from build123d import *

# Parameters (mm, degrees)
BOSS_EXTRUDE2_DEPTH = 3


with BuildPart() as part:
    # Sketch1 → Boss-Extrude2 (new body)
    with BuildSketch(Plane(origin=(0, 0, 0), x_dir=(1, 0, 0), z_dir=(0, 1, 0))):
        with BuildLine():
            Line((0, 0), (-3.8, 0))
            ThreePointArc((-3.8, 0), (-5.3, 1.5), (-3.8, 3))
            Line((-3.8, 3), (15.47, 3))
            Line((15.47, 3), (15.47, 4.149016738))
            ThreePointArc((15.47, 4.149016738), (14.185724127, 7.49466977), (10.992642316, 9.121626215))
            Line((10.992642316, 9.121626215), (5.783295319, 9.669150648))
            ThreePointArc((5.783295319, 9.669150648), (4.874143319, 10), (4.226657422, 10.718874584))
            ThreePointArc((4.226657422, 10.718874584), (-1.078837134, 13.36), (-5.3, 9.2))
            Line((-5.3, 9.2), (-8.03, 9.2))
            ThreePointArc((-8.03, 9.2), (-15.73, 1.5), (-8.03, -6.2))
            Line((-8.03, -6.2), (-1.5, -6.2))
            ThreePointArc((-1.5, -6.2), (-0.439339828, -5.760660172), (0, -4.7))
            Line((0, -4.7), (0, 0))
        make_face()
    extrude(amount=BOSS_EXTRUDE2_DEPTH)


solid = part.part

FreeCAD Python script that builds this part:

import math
import FreeCAD as App
import Part
import Sketcher
Q = App.Units.Quantity

doc = App.newDocument("Part")
body = doc.addObject("PartDesign::Body", "Body")

# Sketch on XZ plane
sketch1 = body.newObject("Sketcher::SketchObject", "Sketch")
sketch1.AttachmentSupport = (doc.getObject("XZ_Plane"), [""])
sketch1.MapMode = "FlatFace"
sketch1.addGeometry(Part.LineSegment(App.Vector(0, 0, 0), App.Vector(-3.8, 0, 0)), False)
sketch1.addGeometry(Part.ArcOfCircle(Part.Circle(App.Vector(-3.8, -1.5, 0), App.Vector(0, 0, 1), 1.5), math.radians(90), math.radians(270)), False)
sketch1.addGeometry(Part.LineSegment(App.Vector(-3.8, -3, 0), App.Vector(15.47, -3, 0)), False)
sketch1.addGeometry(Part.LineSegment(App.Vector(15.47, -3, 0), App.Vector(15.47, -4.149017, 0)), False)
sketch1.addGeometry(Part.ArcOfCircle(Part.Circle(App.Vector(10.47, -4.149017, 0), App.Vector(0, 0, 1), 5), math.radians(-84), math.radians(0)), False)
sketch1.addGeometry(Part.LineSegment(App.Vector(10.992642, -9.121626, 0), App.Vector(5.783295, -9.669151, 0)), False)
sketch1.addGeometry(Part.ArcOfCircle(Part.Circle(App.Vector(5.992352, -11.658194, 0), App.Vector(0, 0, 1), 2), math.radians(96), math.radians(151.987776)), False)
sketch1.addGeometry(Part.ArcOfCircle(Part.Circle(App.Vector(-0.275864, -8.323609, 0), App.Vector(0, 0, 1), 5.1), math.radians(-170.105102), math.radians(-28.012224)), False)
sketch1.addGeometry(Part.LineSegment(App.Vector(-5.3, -9.2, 0), App.Vector(-8.03, -9.2, 0)), False)
sketch1.addGeometry(Part.ArcOfCircle(Part.Circle(App.Vector(-8.03, -1.5, 0), App.Vector(0, 0, 1), 7.7), math.radians(90), math.radians(270)), False)
sketch1.addGeometry(Part.LineSegment(App.Vector(-8.03, 6.2, 0), App.Vector(-1.5, 6.2, 0)), False)
sketch1.addGeometry(Part.ArcOfCircle(Part.Circle(App.Vector(-1.5, 4.7, 0), App.Vector(0, 0, 1), 1.5), math.radians(0), math.radians(90)), False)
sketch1.addGeometry(Part.LineSegment(App.Vector(0, 4.7, 0), App.Vector(0, 0, 0)), False)
sketch1.addConstraint(Sketcher.Constraint("Tangent", 0, 2, 1, 1))
sketch1.addConstraint(Sketcher.Constraint("Tangent", 1, 2, 2, 1))
sketch1.addConstraint(Sketcher.Constraint("Coincident", 2, 2, 3, 1))
sketch1.addConstraint(Sketcher.Constraint("Tangent", 3, 2, 4, 2))
sketch1.addConstraint(Sketcher.Constraint("Tangent", 4, 1, 5, 1))
sketch1.addConstraint(Sketcher.Constraint("Tangent", 5, 2, 6, 1))
sketch1.addConstraint(Sketcher.Constraint("Tangent", 6, 2, 7, 2))
sketch1.addConstraint(Sketcher.Constraint("Coincident", 7, 1, 8, 1))
sketch1.addConstraint(Sketcher.Constraint("Tangent", 8, 2, 9, 2))
sketch1.addConstraint(Sketcher.Constraint("Tangent", 9, 1, 10, 1))
sketch1.addConstraint(Sketcher.Constraint("Tangent", 10, 2, 11, 2))
sketch1.addConstraint(Sketcher.Constraint("Tangent", 11, 1, 12, 1))
sketch1.addConstraint(Sketcher.Constraint("Coincident", 12, 2, 0, 1))
sketch1.addConstraint(Sketcher.Constraint("Horizontal", 0))
sketch1.addConstraint(Sketcher.Constraint("Horizontal", 2))
sketch1.addConstraint(Sketcher.Constraint("Vertical", 3))
sketch1.addConstraint(Sketcher.Constraint("Horizontal", 8))
sketch1.addConstraint(Sketcher.Constraint("Horizontal", 10))
sketch1.addConstraint(Sketcher.Constraint("Vertical", 12))
sketch1.addConstraint(Sketcher.Constraint("Coincident", 12, 2, -1, 1))
sketch1.addConstraint(Sketcher.Constraint("Equal", 1, 11))
sketch1.addConstraint(Sketcher.Constraint("Horizontal", 1, 3, 9, 3))
sketch1.addConstraint(Sketcher.Constraint("Radius", 4, Q("5 mm")))
sketch1.addConstraint(Sketcher.Constraint("Radius", 6, Q("2 mm")))
sketch1.addConstraint(Sketcher.Constraint("Radius", 1, Q("1.5 mm")))
sketch1.addConstraint(Sketcher.Constraint("Radius", 7, Q("5.1 mm")))
sketch1.addConstraint(Sketcher.Constraint("Radius", 9, Q("7.7 mm")))
sketch1.addConstraint(Sketcher.Constraint("Angle", 5, Q("-174 deg")))
sketch1.addConstraint(Sketcher.Constraint("DistanceX", 0, 2, 0, 1, Q("3.8 mm")))
sketch1.addConstraint(Sketcher.Constraint("DistanceX", 2, 1, 2, 2, Q("19.27 mm")))
sketch1.addConstraint(Sketcher.Constraint("DistanceX", 8, 2, 8, 1, Q("2.73 mm")))
sketch1.addConstraint(Sketcher.Constraint("DistanceX", 10, 1, 10, 2, Q("6.53 mm")))
sketch1.addConstraint(Sketcher.Constraint("Distance", 5, Q("5.238042 mm")))
sketch1.addConstraint(Sketcher.Constraint("DistanceY", 3, 2, 3, 1, Q("1.149017 mm")))
pad1 = body.newObject("PartDesign::Pad", "Pad")
pad1.Profile = sketch1
pad1.Length = 3
pad1.Reversed = True

doc.recompute()
